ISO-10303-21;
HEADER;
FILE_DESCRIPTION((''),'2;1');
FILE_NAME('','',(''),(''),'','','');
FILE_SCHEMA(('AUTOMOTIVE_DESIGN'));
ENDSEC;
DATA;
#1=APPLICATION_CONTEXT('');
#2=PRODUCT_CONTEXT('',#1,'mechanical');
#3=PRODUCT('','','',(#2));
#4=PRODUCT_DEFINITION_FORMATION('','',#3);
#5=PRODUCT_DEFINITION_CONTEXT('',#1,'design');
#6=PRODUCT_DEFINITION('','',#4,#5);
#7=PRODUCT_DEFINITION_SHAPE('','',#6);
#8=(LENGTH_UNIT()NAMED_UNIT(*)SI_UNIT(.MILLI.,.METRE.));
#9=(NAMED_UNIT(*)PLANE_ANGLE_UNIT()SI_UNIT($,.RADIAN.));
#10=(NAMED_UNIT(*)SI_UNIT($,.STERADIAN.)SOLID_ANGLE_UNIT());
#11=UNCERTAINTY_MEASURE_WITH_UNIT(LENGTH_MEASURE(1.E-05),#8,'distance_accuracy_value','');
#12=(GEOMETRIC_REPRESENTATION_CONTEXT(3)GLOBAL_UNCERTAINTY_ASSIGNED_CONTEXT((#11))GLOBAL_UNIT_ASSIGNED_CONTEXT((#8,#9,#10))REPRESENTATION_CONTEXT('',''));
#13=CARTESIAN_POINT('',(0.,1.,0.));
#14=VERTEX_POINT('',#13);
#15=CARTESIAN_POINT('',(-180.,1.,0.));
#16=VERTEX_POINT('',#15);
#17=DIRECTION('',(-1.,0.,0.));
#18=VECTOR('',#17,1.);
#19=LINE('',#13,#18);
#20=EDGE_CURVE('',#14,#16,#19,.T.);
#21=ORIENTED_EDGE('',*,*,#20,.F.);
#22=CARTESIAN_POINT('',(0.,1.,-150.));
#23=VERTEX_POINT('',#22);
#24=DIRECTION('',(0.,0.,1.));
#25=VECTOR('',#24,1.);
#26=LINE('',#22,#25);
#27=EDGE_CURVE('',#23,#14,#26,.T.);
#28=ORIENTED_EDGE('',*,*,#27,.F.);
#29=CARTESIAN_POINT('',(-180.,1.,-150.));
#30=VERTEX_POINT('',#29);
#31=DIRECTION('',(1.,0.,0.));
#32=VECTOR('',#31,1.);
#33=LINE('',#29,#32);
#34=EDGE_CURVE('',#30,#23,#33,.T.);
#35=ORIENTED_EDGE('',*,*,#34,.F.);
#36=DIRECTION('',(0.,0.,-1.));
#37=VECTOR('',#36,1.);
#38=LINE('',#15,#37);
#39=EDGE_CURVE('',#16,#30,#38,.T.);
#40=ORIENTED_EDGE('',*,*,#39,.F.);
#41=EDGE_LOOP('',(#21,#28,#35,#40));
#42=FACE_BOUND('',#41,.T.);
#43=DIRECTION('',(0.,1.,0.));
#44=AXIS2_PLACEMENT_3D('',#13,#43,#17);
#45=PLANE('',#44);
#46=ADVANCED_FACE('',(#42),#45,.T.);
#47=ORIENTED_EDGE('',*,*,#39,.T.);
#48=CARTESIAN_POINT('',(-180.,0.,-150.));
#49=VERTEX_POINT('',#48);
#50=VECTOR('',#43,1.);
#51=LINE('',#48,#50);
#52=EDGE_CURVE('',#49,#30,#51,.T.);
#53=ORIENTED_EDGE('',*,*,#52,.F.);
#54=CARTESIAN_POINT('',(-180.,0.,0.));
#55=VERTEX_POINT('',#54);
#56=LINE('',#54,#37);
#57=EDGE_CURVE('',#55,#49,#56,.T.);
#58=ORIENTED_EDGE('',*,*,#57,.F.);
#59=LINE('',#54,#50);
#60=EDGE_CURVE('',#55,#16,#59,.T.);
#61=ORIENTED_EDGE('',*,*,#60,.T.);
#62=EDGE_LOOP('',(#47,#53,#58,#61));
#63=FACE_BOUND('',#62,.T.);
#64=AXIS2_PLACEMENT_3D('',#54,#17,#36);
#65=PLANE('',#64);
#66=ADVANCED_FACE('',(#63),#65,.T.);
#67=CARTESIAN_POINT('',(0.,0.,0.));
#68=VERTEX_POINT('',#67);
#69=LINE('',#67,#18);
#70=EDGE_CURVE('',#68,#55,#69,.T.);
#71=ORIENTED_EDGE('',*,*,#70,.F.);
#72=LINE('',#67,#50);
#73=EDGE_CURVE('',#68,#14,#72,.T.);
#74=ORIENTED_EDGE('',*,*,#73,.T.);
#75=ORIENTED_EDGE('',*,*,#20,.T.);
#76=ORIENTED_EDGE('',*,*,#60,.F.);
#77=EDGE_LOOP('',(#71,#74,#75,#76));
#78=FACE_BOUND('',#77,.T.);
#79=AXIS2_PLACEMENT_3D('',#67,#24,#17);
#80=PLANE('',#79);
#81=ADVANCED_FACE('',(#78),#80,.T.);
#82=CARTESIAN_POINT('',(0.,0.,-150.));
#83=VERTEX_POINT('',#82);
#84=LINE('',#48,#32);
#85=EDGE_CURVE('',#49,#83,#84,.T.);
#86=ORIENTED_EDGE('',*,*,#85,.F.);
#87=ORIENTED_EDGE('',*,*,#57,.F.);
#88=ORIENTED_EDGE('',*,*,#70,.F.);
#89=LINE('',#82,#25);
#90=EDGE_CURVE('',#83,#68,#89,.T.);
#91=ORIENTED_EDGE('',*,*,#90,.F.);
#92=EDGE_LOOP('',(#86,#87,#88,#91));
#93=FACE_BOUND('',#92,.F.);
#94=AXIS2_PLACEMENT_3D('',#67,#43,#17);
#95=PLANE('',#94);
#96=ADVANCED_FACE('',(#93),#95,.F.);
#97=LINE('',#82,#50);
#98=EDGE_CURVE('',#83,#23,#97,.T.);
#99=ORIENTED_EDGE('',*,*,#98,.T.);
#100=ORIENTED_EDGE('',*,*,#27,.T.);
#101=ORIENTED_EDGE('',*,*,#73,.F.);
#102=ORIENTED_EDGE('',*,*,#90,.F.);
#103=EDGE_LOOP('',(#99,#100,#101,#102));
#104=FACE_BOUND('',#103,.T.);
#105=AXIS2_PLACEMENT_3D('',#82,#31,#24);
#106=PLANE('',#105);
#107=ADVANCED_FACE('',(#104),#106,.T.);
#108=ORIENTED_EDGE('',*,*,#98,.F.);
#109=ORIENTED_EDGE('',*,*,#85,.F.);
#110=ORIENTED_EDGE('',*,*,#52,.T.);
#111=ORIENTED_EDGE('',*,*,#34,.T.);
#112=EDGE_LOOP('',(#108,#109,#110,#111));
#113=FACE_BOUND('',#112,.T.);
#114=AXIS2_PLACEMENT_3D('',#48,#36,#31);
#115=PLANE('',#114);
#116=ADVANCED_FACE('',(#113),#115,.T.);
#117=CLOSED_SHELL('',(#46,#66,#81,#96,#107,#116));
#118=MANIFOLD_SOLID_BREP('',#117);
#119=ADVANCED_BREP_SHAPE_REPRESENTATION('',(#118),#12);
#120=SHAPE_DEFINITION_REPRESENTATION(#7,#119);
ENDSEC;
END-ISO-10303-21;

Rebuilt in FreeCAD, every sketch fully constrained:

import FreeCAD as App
import Part
import Sketcher
Q = App.Units.Quantity


def add_polygon(sketch, points):
    """Adds a closed chain of lines whose ends are joined by coincident constraints."""
    first, n = sketch.GeometryCount, len(points)
    for a, b in zip(points, points[1:] + points[:1]):
        sketch.addGeometry(Part.LineSegment(App.Vector(*a, 0), App.Vector(*b, 0)), False)
    for i in range(n):
        sketch.addConstraint(Sketcher.Constraint("Coincident", first + i, 2, first + (i + 1) % n, 1))

doc = App.newDocument("Part")
params = doc.addObject("Spreadsheet::Sheet", "Params")
for row, (alias, value) in enumerate([
    ("sketch1_width", "180 mm"),
    ("sketch1_height", "150 mm"),
    ("pad1_length", "1 mm"),
], start=1):
    params.set(f"A{row}", alias)
    params.set(f"B{row}", "=" + value)
    params.setAlias(f"B{row}", alias)

body = doc.addObject("PartDesign::Body", "Body")

sketch1 = body.newObject("Sketcher::SketchObject", "Sketch")
sketch1.AttachmentSupport = (doc.getObject("XZ_Plane"), [""])
sketch1.MapMode = "FlatFace"
add_polygon(sketch1, [(-180, 0), (0, 0), (0, -150), (-180, -150)])
sketch1.addConstraint(Sketcher.Constraint("Horizontal", 0))
sketch1.addConstraint(Sketcher.Constraint("Vertical", 1))
sketch1.addConstraint(Sketcher.Constraint("Horizontal", 2))
sketch1.addConstraint(Sketcher.Constraint("Vertical", 3))
sketch1.addConstraint(Sketcher.Constraint("Coincident", 0, 2, -1, 1))
sketch1.addConstraint(Sketcher.Constraint("DistanceX", 0, 1, 0, 2, Q("180 mm")))
sketch1.addConstraint(Sketcher.Constraint("DistanceY", 1, 2, 1, 1, Q("150 mm")))
sketch1.setExpression("Constraints[9]", "Params.sketch1_width")
sketch1.setExpression("Constraints[10]", "Params.sketch1_height")
pad1 = body.newObject("PartDesign::Pad", "Pad")
pad1.Profile = sketch1
pad1.setExpression("Length", "Params.pad1_length")
pad1.Reversed = True

doc.recompute()
